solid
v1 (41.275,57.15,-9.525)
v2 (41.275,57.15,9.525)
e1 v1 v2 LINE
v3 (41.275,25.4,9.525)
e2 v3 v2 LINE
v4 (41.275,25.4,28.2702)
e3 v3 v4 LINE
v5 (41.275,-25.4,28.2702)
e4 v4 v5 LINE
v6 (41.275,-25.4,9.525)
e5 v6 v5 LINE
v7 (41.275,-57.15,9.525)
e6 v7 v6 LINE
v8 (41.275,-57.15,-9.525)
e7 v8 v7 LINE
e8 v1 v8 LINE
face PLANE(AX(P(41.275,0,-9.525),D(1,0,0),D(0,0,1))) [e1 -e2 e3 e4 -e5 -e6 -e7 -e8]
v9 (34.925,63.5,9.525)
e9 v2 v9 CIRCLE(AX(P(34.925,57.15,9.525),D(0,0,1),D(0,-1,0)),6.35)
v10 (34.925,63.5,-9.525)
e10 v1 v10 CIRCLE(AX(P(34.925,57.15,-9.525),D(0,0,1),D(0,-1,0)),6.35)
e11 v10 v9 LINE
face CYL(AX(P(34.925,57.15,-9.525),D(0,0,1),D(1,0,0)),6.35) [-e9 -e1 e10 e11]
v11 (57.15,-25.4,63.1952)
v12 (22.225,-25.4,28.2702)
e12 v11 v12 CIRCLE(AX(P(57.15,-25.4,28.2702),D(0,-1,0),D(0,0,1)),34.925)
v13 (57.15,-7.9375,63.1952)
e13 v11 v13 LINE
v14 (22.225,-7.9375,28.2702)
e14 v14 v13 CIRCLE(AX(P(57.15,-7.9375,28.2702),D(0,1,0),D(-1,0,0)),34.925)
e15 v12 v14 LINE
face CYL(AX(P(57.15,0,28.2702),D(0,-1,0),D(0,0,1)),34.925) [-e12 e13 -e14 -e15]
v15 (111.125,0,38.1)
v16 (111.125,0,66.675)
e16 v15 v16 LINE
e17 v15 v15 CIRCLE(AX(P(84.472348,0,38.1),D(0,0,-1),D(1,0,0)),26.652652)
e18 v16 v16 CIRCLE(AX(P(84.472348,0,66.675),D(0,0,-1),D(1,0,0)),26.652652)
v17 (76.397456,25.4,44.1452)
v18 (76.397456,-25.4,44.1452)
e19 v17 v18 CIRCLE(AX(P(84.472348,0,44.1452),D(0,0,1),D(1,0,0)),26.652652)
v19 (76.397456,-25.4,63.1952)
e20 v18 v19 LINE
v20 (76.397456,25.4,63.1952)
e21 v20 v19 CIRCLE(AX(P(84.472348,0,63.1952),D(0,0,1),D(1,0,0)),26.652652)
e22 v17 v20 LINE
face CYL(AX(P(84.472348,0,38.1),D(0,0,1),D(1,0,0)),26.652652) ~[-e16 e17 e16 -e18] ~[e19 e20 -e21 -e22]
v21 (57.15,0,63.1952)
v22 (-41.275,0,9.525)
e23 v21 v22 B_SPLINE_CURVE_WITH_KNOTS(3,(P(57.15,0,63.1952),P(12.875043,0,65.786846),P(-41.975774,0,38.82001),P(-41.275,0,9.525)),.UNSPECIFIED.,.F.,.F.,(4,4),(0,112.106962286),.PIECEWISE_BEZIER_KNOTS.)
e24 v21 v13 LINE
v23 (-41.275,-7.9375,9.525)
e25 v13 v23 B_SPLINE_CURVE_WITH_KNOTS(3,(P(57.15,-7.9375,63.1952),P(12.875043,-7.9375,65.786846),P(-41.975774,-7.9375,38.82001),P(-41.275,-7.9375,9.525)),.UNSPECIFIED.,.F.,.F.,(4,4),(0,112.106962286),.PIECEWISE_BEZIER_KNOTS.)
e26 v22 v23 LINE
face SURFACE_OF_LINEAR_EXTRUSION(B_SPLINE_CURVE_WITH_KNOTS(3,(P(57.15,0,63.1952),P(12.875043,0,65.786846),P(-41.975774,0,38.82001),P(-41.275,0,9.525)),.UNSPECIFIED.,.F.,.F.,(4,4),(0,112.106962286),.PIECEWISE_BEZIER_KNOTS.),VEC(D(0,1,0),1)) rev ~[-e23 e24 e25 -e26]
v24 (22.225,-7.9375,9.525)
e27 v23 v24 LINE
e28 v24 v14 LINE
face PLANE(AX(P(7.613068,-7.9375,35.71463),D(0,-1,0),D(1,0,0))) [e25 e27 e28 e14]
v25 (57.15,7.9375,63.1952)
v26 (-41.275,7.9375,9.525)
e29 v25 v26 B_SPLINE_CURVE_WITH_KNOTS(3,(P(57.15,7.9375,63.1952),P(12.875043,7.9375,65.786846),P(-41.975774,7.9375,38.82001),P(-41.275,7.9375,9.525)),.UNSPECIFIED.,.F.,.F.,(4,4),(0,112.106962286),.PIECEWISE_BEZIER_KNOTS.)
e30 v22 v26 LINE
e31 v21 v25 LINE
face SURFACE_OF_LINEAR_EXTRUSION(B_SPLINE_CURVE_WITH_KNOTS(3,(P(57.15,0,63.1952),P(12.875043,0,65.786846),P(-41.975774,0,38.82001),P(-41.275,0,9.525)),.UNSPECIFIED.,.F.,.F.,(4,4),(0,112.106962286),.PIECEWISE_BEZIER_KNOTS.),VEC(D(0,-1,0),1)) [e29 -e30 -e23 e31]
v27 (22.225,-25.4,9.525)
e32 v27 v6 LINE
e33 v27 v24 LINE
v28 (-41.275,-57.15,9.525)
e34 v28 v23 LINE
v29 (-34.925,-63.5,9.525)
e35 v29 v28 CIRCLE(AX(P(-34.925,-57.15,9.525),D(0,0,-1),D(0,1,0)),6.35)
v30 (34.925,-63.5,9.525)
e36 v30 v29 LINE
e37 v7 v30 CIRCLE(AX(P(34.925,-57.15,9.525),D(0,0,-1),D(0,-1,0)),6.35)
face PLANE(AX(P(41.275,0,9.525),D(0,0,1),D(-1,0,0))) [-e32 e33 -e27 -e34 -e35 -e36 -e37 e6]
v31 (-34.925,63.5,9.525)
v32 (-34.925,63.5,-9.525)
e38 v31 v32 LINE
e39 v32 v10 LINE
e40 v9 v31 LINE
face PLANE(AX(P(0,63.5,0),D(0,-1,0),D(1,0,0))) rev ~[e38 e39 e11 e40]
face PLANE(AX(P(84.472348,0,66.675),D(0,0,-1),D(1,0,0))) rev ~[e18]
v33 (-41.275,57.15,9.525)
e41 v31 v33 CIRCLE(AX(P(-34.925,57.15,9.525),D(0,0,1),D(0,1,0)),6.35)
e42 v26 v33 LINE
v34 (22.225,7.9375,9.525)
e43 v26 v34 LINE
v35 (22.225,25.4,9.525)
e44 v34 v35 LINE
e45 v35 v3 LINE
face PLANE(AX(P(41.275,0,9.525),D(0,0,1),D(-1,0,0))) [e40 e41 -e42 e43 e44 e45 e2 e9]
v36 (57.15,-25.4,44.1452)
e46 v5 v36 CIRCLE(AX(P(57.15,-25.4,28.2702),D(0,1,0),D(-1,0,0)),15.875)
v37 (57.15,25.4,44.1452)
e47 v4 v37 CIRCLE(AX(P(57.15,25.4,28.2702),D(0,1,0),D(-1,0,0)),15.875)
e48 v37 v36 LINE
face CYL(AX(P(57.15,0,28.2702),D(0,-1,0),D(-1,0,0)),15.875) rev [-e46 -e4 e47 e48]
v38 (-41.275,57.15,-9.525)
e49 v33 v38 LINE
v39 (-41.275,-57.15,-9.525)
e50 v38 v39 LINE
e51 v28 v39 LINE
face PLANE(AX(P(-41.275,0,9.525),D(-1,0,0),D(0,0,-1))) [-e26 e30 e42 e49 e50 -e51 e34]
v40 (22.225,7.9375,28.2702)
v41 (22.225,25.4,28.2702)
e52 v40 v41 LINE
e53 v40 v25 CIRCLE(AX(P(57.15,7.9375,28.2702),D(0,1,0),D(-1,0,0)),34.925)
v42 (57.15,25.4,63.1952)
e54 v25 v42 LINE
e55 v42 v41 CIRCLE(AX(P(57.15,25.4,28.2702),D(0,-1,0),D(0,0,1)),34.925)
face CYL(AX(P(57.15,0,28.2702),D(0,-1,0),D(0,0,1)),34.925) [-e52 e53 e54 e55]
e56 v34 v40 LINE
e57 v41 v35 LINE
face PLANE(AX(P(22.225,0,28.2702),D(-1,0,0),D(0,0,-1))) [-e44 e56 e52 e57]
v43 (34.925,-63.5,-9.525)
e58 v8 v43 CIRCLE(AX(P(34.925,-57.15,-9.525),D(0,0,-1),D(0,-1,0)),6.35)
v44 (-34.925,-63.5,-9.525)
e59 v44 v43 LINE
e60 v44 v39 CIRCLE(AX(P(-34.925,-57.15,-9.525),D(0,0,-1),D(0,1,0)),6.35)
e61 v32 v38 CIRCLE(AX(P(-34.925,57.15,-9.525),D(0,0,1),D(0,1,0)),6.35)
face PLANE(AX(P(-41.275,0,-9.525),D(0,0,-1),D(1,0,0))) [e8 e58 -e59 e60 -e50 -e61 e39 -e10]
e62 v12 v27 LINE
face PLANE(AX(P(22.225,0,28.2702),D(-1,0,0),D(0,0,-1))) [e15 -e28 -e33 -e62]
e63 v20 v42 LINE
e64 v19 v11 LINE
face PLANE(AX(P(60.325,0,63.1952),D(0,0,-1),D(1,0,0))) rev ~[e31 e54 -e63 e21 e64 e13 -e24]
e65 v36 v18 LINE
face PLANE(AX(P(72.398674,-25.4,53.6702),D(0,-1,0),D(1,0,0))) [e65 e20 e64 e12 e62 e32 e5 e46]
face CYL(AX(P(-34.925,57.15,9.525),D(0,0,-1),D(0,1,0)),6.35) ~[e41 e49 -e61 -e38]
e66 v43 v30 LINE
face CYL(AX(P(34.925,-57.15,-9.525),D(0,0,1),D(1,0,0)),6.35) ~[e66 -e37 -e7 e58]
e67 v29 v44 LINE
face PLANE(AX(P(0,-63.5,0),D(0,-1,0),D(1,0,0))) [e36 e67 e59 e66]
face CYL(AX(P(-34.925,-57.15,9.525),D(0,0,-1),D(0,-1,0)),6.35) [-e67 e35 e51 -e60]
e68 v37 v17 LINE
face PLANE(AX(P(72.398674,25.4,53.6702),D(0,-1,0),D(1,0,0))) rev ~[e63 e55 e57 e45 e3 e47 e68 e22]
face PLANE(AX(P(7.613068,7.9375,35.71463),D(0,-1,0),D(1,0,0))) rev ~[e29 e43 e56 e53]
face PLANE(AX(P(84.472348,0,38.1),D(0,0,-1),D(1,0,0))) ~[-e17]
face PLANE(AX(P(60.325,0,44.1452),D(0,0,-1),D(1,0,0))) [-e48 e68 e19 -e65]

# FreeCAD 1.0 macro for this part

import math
import FreeCAD as App
import Part
import Sketcher

V = App.Vector
Q = App.Units.Quantity


def edges_at(feature, points):
    """Names of the edges that pass closest to the given points."""
    edges = feature.Shape.Edges
    near = lambda p: min(range(len(edges)), key=lambda i: edges[i].distToShape(Part.Vertex(*p))[0])
    return sorted({f"Edge{near(p) + 1}" for p in points})

doc = App.newDocument("Part")
body = doc.addObject("PartDesign::Body", "Body")

sketch1 = body.newObject("Sketcher::SketchObject", "Sketch")
sketch1.AttachmentSupport = (doc.getObject("XZ_Plane"), [""])
sketch1.MapMode = "FlatFace"
sketch1.addGeometry(Part.LineSegment(V(-41, 10, 0), V(-41, -10, 0)), False)
sketch1.addGeometry(Part.LineSegment(V(-41, -10, 0), V(41, -10, 0)), False)
sketch1.addGeometry(Part.LineSegment(V(41, -10, 0), V(41, 10, 0)), False)
sketch1.addGeometry(Part.LineSegment(V(41, 10, 0), V(-41, 10, 0)), False)
sketch1.addConstraint(Sketcher.Constraint("Coincident", 0, 2, 1, 1))
sketch1.addConstraint(Sketcher.Constraint("Coincident", 1, 2, 2, 1))
sketch1.addConstraint(Sketcher.Constraint("Coincident", 2, 2, 3, 1))
sketch1.addConstraint(Sketcher.Constraint("Coincident", 3, 2, 0, 1))
sketch1.addConstraint(Sketcher.Constraint("Vertical", 0))
sketch1.addConstraint(Sketcher.Constraint("Horizontal", 1))
sketch1.addConstraint(Sketcher.Constraint("Vertical", 2))
sketch1.addConstraint(Sketcher.Constraint("Horizontal", 3))
sketch1.addConstraint(Sketcher.Constraint("Symmetric", 0, 2, 2, 2, -1, 1))
sketch1.addConstraint(Sketcher.Constraint("DistanceX", 1, 1, 1, 2, Q("3.25 in")))
sketch1.addConstraint(Sketcher.Constraint("DistanceY", 0, 2, 0, 1, Q("0.75 in")))
pad1 = body.newObject("PartDesign::Pad", "Pad")
pad1.Profile = sketch1
pad1.Length = Q("5 in")
pad1.Midplane = True

sketch2 = body.newObject("Sketcher::SketchObject", "Sketch001")
sketch2.AttachmentSupport = (doc.getObject("XZ_Plane"), [""])
sketch2.MapMode = "FlatFace"
sketch2.addGeometry(Part.LineSegment(V(22.2, 9.5, 0), V(41.3, 9.5, 0)), False)
sketch2.addGeometry(Part.LineSegment(V(41.3, 9.5, 0), V(41.3, 28.3, 0)), False)
sketch2.addGeometry(Part.ArcOfCircle(Part.Circle(V(57.1, 28.3, 0), V(0, 0, 1), 15.9), math.radians(90), math.radians(180)), False)
sketch2.addGeometry(Part.LineSegment(V(57.1, 44.1, 0), V(60.3, 44.1, 0)), False)
sketch2.addGeometry(Part.LineSegment(V(60.3, 44.1, 0), V(60.3, 63.2, 0)), False)
sketch2.addGeometry(Part.LineSegment(V(60.3, 63.2, 0), V(57.1, 63.2, 0)), False)
sketch2.addGeometry(Part.ArcOfCircle(Part.Circle(V(57.1, 28.3, 0), V(0, 0, 1), 34.9), math.radians(90), math.radians(180)), False)
sketch2.addGeometry(Part.LineSegment(V(22.2, 28.3, 0), V(22.2, 9.5, 0)), False)
sketch2.addConstraint(Sketcher.Constraint("Coincident", 0, 2, 1, 1))
sketch2.addConstraint(Sketcher.Constraint("Tangent", 1, 2, 2, 2))
sketch2.addConstraint(Sketcher.Constraint("Tangent", 2, 1, 3, 1))
sketch2.addConstraint(Sketcher.Constraint("Coincident", 3, 2, 4, 1))
sketch2.addConstraint(Sketcher.Constraint("Coincident", 4, 2, 5, 1))
sketch2.addConstraint(Sketcher.Constraint("Tangent", 5, 2, 6, 1))
sketch2.addConstraint(Sketcher.Constraint("Tangent", 6, 2, 7, 1))
sketch2.addConstraint(Sketcher.Constraint("Coincident", 7, 2, 0, 1))
sketch2.addConstraint(Sketcher.Constraint("Horizontal", 0))
sketch2.addConstraint(Sketcher.Constraint("Vertical", 1))
sketch2.addConstraint(Sketcher.Constraint("Horizontal", 3))
sketch2.addConstraint(Sketcher.Constraint("Vertical", 4))
sketch2.addConstraint(Sketcher.Constraint("Horizontal", 5))
sketch2.addConstraint(Sketcher.Constraint("Vertical", 7))
sketch2.addConstraint(Sketcher.Constraint("Coincident", 6, 3, 2, 3))
sketch2.addConstraint(Sketcher.Constraint("Radius", 2, Q("0.625 in")))
sketch2.addConstraint(Sketcher.Constraint("Radius", 6, Q("1.375 in")))
sketch2.addConstraint(Sketcher.Constraint("DistanceX", 3, 1, 3, 2, Q("0.125 in")))
sketch2.addConstraint(Sketcher.Constraint("DistanceY", 1, 1, 1, 2, Q("0.738 in")))
sketch2.addConstraint(Sketcher.Constraint("DistanceX", -1, 1, 2, 3, Q("2.25 in")))
sketch2.addConstraint(Sketcher.Constraint("DistanceY", -1, 1, 2, 3, Q("1.113 in")))
pad2 = body.newObject("PartDesign::Pad", "Pad001")
pad2.Profile = sketch2
pad2.Length = Q("2 in")
pad2.Midplane = True

sketch3 = body.newObject("Sketcher::SketchObject", "Sketch002")
sketch3.AttachmentSupport = (doc.getObject("XZ_Plane"), [""])
sketch3.MapMode = "FlatFace"
sketch3.addGeometry(Part.BSplineCurve([V(57.15, 63.1952, 0), V(12.875043, 65.786846, 0), V(-41.975774, 38.82001, 0), V(-41.275, 9.525, 0)], [4, 4], [0, 112.106962286], False, 3, [1, 1, 1, 1], False), False)
sketch3.addGeometry(Part.LineSegment(V(-41.275, 9.525, 0), V(22.225, 9.525, 0)), False)
sketch3.addGeometry(Part.LineSegment(V(22.225, 9.525, 0), V(22.225, 28.2702, 0)), False)
sketch3.addGeometry(Part.ArcOfCircle(Part.Circle(V(57.15, 28.2702, 0), V(0, 0, 1), 34.925), math.radians(90), math.radians(180)), False)
sketch3.addConstraint(Sketcher.Constraint("Block", 0))
sketch3.addConstraint(Sketcher.Constraint("Coincident", 0, 2, 1, 1))
sketch3.addConstraint(Sketcher.Constraint("Coincident", 1, 2, 2, 1))
sketch3.addConstraint(Sketcher.Constraint("Tangent", 2, 2, 3, 2))
sketch3.addConstraint(Sketcher.Constraint("Coincident", 3, 1, 0, 1))
sketch3.addConstraint(Sketcher.Constraint("Horizontal", 1))
sketch3.addConstraint(Sketcher.Constraint("Vertical", 2))
sketch3.addConstraint(Sketcher.Constraint("DistanceX", 1, 1, 1, 2, Q("2.5 in")))
sketch3.addConstraint(Sketcher.Constraint("Radius", 3, Q("1.375 in")))
pad3 = body.newObject("PartDesign::Pad", "Pad002")
pad3.Profile = sketch3
pad3.Length = Q("0.625 in")
pad3.Midplane = True

sketch4 = body.newObject("Sketcher::SketchObject", "Sketch003")
sketch4.AttachmentSupport = (doc.getObject("XZ_Plane"), [""])
sketch4.MapMode = "FlatFace"
sketch4.addGeometry(Part.LineSegment(V(60, 63, 0), V(60, 44, 0)), False)
sketch4.addGeometry(Part.LineSegment(V(60, 44, 0), V(84, 44, 0)), False)
sketch4.addGeometry(Part.LineSegment(V(84, 44, 0), V(84, 63, 0)), False)
sketch4.addGeometry(Part.LineSegment(V(84, 63, 0), V(60, 63, 0)), False)
sketch4.addConstraint(Sketcher.Constraint("Coincident", 0, 2, 1, 1))
sketch4.addConstraint(Sketcher.Constraint("Coincident", 1, 2, 2, 1))
sketch4.addConstraint(Sketcher.Constraint("Coincident", 2, 2, 3, 1))
sketch4.addConstraint(Sketcher.Constraint("Coincident", 3, 2, 0, 1))
sketch4.addConstraint(Sketcher.Constraint("Vertical", 0))
sketch4.addConstraint(Sketcher.Constraint("Horizontal", 1))
sketch4.addConstraint(Sketcher.Constraint("Vertical", 2))
sketch4.addConstraint(Sketcher.Constraint("Horizontal", 3))
sketch4.addConstraint(Sketcher.Constraint("DistanceY", 0, 2, 0, 1, Q("0.75 in")))
sketch4.addConstraint(Sketcher.Constraint("DistanceX", -1, 1, 0, 2, Q("2.375 in")))
sketch4.addConstraint(Sketcher.Constraint("DistanceY", -1, 1, 0, 2, Q("1.738 in")))
sketch4.addConstraint(Sketcher.Constraint("DistanceX", 1, 1, 1, 2, Q("24.147348 mm")))
pad4 = body.newObject("PartDesign::Pad", "Pad003")
pad4.Profile = sketch4
pad4.Length = Q("2 in")
pad4.Midplane = True

sketch5 = body.newObject("Sketcher::SketchObject", "Sketch004")
sketch5.AttachmentSupport = (doc.getObject("XZ_Plane"), [""])
sketch5.MapMode = "FlatFace"
sketch5.addGeometry(Part.LineSegment(V(84, 67, 0), V(84, 38, 0)), False)
sketch5.addGeometry(Part.LineSegment(V(84, 38, 0), V(111, 38, 0)), False)
sketch5.addGeometry(Part.LineSegment(V(111, 38, 0), V(111, 67, 0)), False)
sketch5.addGeometry(Part.LineSegment(V(111, 67, 0), V(84, 67, 0)), False)
sketch5.addGeometry(Part.LineSegment(V(84, 67, 0), V(84, 38, 0)), True)
sketch5.addConstraint(Sketcher.Constraint("Coincident", 0, 2, 1, 1))
sketch5.addConstraint(Sketcher.Constraint("Coincident", 1, 2, 2, 1))
sketch5.addConstraint(Sketcher.Constraint("Coincident", 2, 2, 3, 1))
sketch5.addConstraint(Sketcher.Constraint("Coincident", 3, 2, 0, 1))
sketch5.addConstraint(Sketcher.Constraint("Vertical", 0))
sketch5.addConstraint(Sketcher.Constraint("Horizontal", 1))
sketch5.addConstraint(Sketcher.Constraint("Vertical", 2))
sketch5.addConstraint(Sketcher.Constraint("Horizontal", 3))
sketch5.addConstraint(Sketcher.Constraint("Vertical", 4))
sketch5.addConstraint(Sketcher.Constraint("Coincident", 4, 1, 3, 2))
sketch5.addConstraint(Sketcher.Constraint("Horizontal", 1, 2, 4, 2))
sketch5.addConstraint(Sketcher.Constraint("DistanceY", -1, 1, 0, 2, Q("1.5 in")))
sketch5.addConstraint(Sketcher.Constraint("DistanceY", 0, 2, 0, 1, Q("1.125 in")))
sketch5.addConstraint(Sketcher.Constraint("DistanceX", -1, 1, 1, 2, Q("4.375 in")))
sketch5.addConstraint(Sketcher.Constraint("DistanceX", 1, 1, 1, 2, Q("26.652652 mm")))
revolution = body.newObject("PartDesign::Revolution", "Revolution")
revolution.Profile = sketch5
revolution.ReferenceAxis = (sketch5, ["Axis0"])
revolution.Angle = 360
doc.recompute()

fillet = body.newObject("PartDesign::Fillet", "Fillet")
fillet.Base = (revolution, edges_at(revolution, [
    (-41.275, -63.5, 0),
    (41.275, -63.5, 0),
    (-41.275, 63.5, 0),
    (41.275, 63.5, 0),
]))
fillet.Radius = Q("0.25 in")

doc.recompute()
